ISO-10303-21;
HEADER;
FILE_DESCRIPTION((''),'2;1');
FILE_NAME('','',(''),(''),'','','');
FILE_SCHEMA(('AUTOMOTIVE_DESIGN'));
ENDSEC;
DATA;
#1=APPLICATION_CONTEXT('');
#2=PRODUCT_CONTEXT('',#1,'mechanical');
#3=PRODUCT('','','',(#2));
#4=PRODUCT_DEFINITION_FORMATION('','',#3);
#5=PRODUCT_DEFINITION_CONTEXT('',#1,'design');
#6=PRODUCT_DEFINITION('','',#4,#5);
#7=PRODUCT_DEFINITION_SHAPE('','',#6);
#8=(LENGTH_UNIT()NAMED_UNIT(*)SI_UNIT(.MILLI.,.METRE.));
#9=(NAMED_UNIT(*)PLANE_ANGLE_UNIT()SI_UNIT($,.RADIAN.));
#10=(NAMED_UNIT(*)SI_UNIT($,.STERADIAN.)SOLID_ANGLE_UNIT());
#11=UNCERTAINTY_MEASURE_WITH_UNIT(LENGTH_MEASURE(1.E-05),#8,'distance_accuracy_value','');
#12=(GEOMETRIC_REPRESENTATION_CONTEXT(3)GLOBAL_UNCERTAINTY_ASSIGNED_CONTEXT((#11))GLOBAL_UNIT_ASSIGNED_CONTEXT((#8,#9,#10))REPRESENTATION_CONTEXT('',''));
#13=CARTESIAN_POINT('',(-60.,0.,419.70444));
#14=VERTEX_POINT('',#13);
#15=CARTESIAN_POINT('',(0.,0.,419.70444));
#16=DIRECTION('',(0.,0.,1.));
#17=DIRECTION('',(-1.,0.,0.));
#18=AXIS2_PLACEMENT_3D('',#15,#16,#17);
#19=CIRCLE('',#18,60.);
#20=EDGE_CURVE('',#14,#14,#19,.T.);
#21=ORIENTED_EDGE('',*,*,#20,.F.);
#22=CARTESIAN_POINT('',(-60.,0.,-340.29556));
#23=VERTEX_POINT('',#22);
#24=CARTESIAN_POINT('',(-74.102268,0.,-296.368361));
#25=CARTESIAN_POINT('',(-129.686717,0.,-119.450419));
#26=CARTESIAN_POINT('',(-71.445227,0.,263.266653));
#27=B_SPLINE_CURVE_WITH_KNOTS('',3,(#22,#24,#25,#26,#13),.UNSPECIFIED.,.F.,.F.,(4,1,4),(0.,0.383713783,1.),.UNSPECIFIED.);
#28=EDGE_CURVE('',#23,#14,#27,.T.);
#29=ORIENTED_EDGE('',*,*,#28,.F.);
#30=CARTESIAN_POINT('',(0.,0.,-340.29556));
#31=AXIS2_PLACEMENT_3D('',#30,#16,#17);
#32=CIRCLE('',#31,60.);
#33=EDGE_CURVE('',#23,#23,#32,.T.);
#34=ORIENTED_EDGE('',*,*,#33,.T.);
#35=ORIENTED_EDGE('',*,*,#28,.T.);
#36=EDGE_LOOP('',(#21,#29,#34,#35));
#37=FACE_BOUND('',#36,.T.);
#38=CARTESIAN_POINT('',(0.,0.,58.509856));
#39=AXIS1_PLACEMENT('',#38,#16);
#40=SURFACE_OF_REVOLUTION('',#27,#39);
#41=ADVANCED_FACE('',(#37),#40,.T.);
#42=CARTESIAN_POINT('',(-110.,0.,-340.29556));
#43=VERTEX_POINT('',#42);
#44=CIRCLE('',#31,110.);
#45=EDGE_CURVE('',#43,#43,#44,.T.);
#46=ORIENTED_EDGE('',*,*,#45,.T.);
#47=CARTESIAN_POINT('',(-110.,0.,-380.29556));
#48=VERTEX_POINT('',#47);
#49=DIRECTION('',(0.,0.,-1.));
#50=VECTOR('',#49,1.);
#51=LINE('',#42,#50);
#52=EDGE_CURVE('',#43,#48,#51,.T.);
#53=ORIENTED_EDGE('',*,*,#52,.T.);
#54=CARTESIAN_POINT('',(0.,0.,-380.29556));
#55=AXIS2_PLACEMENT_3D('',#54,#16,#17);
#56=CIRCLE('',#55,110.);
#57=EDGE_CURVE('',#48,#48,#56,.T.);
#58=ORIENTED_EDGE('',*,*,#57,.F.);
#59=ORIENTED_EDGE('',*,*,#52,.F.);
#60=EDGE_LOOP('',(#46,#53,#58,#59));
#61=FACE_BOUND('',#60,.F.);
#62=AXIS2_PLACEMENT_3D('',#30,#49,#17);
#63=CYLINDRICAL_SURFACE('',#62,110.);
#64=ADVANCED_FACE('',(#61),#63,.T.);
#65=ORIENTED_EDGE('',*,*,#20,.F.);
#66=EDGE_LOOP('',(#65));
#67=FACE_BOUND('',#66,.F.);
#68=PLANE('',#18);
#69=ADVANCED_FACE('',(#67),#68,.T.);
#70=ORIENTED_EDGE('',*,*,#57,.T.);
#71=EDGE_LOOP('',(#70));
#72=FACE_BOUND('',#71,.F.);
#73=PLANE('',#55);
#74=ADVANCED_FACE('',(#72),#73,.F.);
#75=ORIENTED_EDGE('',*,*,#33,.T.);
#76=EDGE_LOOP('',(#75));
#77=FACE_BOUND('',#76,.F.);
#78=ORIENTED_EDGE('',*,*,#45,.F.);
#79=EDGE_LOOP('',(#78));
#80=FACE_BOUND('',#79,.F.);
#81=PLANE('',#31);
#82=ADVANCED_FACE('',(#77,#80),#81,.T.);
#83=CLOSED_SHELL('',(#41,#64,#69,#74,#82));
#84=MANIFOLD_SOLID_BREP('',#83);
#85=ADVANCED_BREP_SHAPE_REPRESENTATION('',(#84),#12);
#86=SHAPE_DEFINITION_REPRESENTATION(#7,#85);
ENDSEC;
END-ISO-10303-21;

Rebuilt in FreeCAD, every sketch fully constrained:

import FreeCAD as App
import Part
import Sketcher
from FreeCAD import Vector
Q = App.Units.Quantity

doc = App.newDocument("Part")
body = doc.addObject("PartDesign::Body", "Body")

sketch1 = doc.addObject("Sketcher::SketchObject", "Sketch")
body.addObject(sketch1)
sketch1.AttachmentSupport = (doc.XZ_Plane, [""])
sketch1.MapMode = "FlatFace"
sketch1.addGeometry(Part.LineSegment(Vector(-110, -380.29556, 0), Vector(0, -380.29556, 0)), False)
sketch1.addGeometry(Part.LineSegment(Vector(0, -380.29556, 0), Vector(0, 419.70444, 0)), False)
sketch1.addGeometry(Part.LineSegment(Vector(0, 419.70444, 0), Vector(-60, 419.70444, 0)), False)
sketch1.addGeometry(Part.BSplineCurve([Vector(-60, -340.29556, 0), Vector(-74.102268, -296.368361, 0), Vector(-129.686717, -119.450419, 0), Vector(-71.445227, 263.266653, 0), Vector(-60, 419.70444, 0)], [4, 1, 4], [0, 0.383713783, 1], False, 3, [1, 1, 1, 1, 1], False), False)
sketch1.addGeometry(Part.LineSegment(Vector(-60, -340.29556, 0), Vector(-110, -340.29556, 0)), False)
sketch1.addGeometry(Part.LineSegment(Vector(-110, -340.29556, 0), Vector(-110, -380.29556, 0)), False)
sketch1.addConstraint(Sketcher.Constraint("Block", 3))
sketch1.addConstraint(Sketcher.Constraint("Coincident", 0, 2, 1, 1))
sketch1.addConstraint(Sketcher.Constraint("Coincident", 1, 2, 2, 1))
sketch1.addConstraint(Sketcher.Constraint("Coincident", 2, 2, 3, 2))
sketch1.addConstraint(Sketcher.Constraint("Coincident", 3, 1, 4, 1))
sketch1.addConstraint(Sketcher.Constraint("Coincident", 4, 2, 5, 1))
sketch1.addConstraint(Sketcher.Constraint("Coincident", 5, 2, 0, 1))
sketch1.addConstraint(Sketcher.Constraint("Horizontal", 0))
sketch1.addConstraint(Sketcher.Constraint("Vertical", 1))
sketch1.addConstraint(Sketcher.Constraint("Horizontal", 2))
sketch1.addConstraint(Sketcher.Constraint("Horizontal", 4))
sketch1.addConstraint(Sketcher.Constraint("Vertical", 5))
sketch1.addConstraint(Sketcher.Constraint("PointOnObject", 0, 2, -2))
sketch1.addConstraint(Sketcher.Constraint("DistanceX", 0, 1, 0, 2, Q("110 mm")))
sketch1.addConstraint(Sketcher.Constraint("DistanceY", 1, 1, 1, 2, Q("800 mm")))
revolution = doc.addObject("PartDesign::Revolution", "Revolution")
body.addObject(revolution)
revolution.Profile = sketch1
revolution.ReferenceAxis = (sketch1, ["V_Axis"])
revolution.Angle = 360

doc.recompute()
